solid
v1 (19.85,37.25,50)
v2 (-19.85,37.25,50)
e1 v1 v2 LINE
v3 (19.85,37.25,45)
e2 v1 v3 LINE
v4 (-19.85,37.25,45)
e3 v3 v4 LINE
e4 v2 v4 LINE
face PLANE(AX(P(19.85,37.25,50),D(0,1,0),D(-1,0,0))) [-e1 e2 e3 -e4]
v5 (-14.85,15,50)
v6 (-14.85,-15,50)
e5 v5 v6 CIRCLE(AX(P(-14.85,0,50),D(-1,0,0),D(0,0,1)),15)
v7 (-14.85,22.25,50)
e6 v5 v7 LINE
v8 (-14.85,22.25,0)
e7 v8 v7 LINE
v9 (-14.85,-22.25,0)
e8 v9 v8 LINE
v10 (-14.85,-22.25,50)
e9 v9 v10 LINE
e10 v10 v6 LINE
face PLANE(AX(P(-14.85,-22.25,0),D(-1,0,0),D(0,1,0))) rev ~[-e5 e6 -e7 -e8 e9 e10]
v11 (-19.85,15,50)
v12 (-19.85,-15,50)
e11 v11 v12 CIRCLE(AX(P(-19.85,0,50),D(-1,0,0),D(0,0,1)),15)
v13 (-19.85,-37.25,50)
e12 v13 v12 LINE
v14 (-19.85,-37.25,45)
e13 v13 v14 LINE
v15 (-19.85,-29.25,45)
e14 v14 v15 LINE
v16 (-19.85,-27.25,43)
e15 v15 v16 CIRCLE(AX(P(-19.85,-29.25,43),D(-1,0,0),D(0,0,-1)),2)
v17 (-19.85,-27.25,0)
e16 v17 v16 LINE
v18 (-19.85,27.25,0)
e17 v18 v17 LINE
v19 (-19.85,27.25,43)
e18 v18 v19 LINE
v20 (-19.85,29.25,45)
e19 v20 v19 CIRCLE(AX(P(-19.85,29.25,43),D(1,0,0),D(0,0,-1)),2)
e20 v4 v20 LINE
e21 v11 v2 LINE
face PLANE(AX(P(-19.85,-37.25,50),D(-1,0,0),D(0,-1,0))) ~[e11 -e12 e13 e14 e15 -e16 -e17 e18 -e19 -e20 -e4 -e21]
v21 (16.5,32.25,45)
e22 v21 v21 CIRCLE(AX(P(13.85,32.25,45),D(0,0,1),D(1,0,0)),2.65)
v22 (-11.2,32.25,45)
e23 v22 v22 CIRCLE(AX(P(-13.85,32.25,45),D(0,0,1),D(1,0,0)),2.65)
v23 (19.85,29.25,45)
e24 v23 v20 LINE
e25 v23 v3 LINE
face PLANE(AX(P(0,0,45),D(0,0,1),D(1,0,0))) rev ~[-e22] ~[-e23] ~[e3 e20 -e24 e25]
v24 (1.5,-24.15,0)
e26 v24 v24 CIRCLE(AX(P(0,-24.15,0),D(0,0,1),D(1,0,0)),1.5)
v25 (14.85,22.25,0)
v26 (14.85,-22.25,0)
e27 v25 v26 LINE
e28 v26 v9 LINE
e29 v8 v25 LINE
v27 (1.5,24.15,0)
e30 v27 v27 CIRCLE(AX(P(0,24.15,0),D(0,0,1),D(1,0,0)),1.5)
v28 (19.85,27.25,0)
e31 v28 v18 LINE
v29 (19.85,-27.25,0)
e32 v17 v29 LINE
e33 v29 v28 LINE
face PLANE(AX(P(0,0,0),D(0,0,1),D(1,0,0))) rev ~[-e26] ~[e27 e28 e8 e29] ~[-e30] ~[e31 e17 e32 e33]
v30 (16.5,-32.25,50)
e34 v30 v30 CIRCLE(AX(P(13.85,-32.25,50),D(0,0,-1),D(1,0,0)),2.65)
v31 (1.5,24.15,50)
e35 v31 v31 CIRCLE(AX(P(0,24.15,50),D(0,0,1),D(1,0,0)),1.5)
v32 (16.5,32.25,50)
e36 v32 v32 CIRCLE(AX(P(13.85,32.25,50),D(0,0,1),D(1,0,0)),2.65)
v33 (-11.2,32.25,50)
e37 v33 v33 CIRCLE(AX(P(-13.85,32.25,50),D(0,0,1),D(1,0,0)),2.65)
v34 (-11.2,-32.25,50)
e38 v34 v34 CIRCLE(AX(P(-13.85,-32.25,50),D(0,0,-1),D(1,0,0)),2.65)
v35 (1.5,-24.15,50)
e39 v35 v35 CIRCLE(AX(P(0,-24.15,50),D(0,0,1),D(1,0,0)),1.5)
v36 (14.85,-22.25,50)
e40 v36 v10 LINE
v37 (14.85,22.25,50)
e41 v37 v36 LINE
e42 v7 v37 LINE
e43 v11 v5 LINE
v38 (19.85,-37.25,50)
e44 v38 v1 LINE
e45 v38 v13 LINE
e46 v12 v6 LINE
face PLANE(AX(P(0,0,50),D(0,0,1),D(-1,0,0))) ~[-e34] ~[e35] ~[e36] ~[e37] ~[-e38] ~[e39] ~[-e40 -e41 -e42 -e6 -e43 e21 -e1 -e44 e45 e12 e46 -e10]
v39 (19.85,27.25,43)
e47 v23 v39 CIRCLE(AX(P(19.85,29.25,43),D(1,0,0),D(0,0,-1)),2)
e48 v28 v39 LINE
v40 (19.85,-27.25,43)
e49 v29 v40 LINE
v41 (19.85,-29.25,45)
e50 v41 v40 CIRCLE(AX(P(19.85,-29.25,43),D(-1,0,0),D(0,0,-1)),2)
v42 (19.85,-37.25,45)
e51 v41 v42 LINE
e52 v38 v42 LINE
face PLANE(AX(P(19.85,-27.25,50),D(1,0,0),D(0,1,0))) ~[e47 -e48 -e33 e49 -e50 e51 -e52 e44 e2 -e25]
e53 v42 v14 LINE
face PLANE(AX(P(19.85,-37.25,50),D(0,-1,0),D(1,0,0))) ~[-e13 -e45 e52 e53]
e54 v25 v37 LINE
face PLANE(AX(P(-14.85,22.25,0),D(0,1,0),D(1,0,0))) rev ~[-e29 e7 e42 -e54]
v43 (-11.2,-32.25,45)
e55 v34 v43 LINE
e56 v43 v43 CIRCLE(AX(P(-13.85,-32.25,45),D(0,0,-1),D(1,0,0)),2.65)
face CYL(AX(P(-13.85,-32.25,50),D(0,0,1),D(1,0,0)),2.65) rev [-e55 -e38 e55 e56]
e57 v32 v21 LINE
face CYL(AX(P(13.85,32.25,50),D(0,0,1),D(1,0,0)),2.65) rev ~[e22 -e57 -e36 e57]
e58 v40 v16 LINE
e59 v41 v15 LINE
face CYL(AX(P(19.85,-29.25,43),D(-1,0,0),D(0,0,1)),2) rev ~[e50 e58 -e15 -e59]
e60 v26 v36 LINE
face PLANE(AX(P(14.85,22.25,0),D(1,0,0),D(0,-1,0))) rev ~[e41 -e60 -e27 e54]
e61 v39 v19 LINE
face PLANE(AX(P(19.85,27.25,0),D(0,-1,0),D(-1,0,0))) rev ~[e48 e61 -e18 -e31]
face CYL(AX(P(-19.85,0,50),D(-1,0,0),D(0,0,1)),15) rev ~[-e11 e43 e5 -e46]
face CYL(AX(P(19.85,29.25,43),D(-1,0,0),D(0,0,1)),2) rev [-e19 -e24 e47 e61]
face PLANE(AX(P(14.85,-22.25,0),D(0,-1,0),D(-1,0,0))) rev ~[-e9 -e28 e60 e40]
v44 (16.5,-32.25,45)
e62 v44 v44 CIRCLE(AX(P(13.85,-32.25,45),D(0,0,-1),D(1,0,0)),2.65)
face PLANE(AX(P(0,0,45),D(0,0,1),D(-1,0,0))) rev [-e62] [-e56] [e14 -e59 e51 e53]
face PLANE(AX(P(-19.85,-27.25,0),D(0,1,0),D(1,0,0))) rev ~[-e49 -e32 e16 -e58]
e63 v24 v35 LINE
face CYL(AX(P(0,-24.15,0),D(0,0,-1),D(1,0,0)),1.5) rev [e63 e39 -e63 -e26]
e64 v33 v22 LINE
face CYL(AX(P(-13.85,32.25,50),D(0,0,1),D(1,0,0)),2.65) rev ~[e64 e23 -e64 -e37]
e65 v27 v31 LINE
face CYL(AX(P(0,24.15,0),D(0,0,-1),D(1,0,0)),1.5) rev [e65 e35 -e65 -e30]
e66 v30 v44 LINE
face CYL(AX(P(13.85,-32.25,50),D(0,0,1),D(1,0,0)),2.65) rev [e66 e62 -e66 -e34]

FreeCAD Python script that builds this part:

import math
import FreeCAD as App
import Part
import Sketcher
from FreeCAD import Vector
Q = App.Units.Quantity


def edges_at(feature, points):
    """Names of the edges that pass closest to the given points."""
    edges = feature.Shape.Edges
    near = lambda p: min(range(len(edges)), key=lambda i: edges[i].distToShape(Part.Vertex(*p))[0])
    return sorted({f"Edge{near(p) + 1}" for p in points})

doc = App.newDocument("Part")
body = doc.addObject("PartDesign::Body", "Body")

# Sketch on XY plane
sketch1 = doc.addObject("Sketcher::SketchObject", "Sketch")
body.addObject(sketch1)
sketch1.AttachmentSupport = (doc.XY_Plane, [""])
sketch1.MapMode = "FlatFace"
sketch1.addGeometry(Part.LineSegment(Vector(-19.9, 27.2, 0), Vector(-19.9, -27.2, 0)), False)
sketch1.addGeometry(Part.LineSegment(Vector(-19.9, -27.2, 0), Vector(19.9, -27.2, 0)), False)
sketch1.addGeometry(Part.LineSegment(Vector(19.9, -27.2, 0), Vector(19.9, 27.2, 0)), False)
sketch1.addGeometry(Part.LineSegment(Vector(19.9, 27.2, 0), Vector(-19.9, 27.2, 0)), False)
sketch1.addGeometry(Part.Circle(Vector(0, -24.1, 0), Vector(0, 0, 1), 1.5), False)
sketch1.addGeometry(Part.LineSegment(Vector(-14.8, 22.2, 0), Vector(14.8, 22.2, 0)), False)
sketch1.addGeometry(Part.LineSegment(Vector(14.8, 22.2, 0), Vector(14.8, -22.2, 0)), False)
sketch1.addGeometry(Part.LineSegment(Vector(14.8, -22.2, 0), Vector(-14.8, -22.2, 0)), False)
sketch1.addGeometry(Part.LineSegment(Vector(-14.8, -22.2, 0), Vector(-14.8, 22.2, 0)), False)
sketch1.addGeometry(Part.Circle(Vector(0, 24.1, 0), Vector(0, 0, 1), 1.5), False)
sketch1.addConstraint(Sketcher.Constraint("Coincident", 0, 2, 1, 1))
sketch1.addConstraint(Sketcher.Constraint("Coincident", 1, 2, 2, 1))
sketch1.addConstraint(Sketcher.Constraint("Coincident", 2, 2, 3, 1))
sketch1.addConstraint(Sketcher.Constraint("Coincident", 3, 2, 0, 1))
sketch1.addConstraint(Sketcher.Constraint("Coincident", 5, 2, 6, 1))
sketch1.addConstraint(Sketcher.Constraint("Coincident", 6, 2, 7, 1))
sketch1.addConstraint(Sketcher.Constraint("Coincident", 7, 2, 8, 1))
sketch1.addConstraint(Sketcher.Constraint("Coincident", 8, 2, 5, 1))
sketch1.addConstraint(Sketcher.Constraint("Vertical", 0))
sketch1.addConstraint(Sketcher.Constraint("Horizontal", 1))
sketch1.addConstraint(Sketcher.Constraint("Vertical", 2))
sketch1.addConstraint(Sketcher.Constraint("Horizontal", 3))
sketch1.addConstraint(Sketcher.Constraint("Horizontal", 5))
sketch1.addConstraint(Sketcher.Constraint("Vertical", 6))
sketch1.addConstraint(Sketcher.Constraint("Horizontal", 7))
sketch1.addConstraint(Sketcher.Constraint("Vertical", 8))
sketch1.addConstraint(Sketcher.Constraint("Equal", 4, 9))
sketch1.addConstraint(Sketcher.Constraint("Symmetric", 4, 3, 9, 3, -1, 1))
sketch1.addConstraint(Sketcher.Constraint("Symmetric", 0, 2, 2, 2, -1, 1))
sketch1.addConstraint(Sketcher.Constraint("Symmetric", 5, 2, 7, 2, -1, 1))
sketch1.addConstraint(Sketcher.Constraint("PointOnObject", 4, 3, -2))
sketch1.addConstraint(Sketcher.Constraint("Diameter", 4, Q("3 mm")))
sketch1.addConstraint(Sketcher.Constraint("DistanceX", 5, 2, 2, 2, Q("5 mm")))
sketch1.addConstraint(Sketcher.Constraint("DistanceY", 5, 2, 2, 2, Q("5 mm")))
sketch1.addConstraint(Sketcher.Constraint("DistanceX", 1, 1, 1, 2, Q("39.7 mm")))
sketch1.addConstraint(Sketcher.Constraint("DistanceY", 0, 2, 0, 1, Q("54.5 mm")))
sketch1.addConstraint(Sketcher.Constraint("DistanceY", 4, 3, 9, 3, Q("48.3 mm")))
pad1 = doc.addObject("PartDesign::Pad", "Pad")
body.addObject(pad1)
pad1.Profile = sketch1
pad1.Length = 50

# Sketch on YZ plane
sketch2 = doc.addObject("Sketcher::SketchObject", "Sketch001")
body.addObject(sketch2)
sketch2.AttachmentSupport = (doc.YZ_Plane, [""])
sketch2.MapMode = "FlatFace"
sketch2.AttachmentOffset = App.Placement(Vector(0, 0, -19.85), App.Rotation())
sketch2.addGeometry(Part.LineSegment(Vector(-15, 50, 0), Vector(15, 50, 0)), False)
sketch2.addGeometry(Part.ArcOfCircle(Part.Circle(Vector(0, 50, 0), Vector(0, 0, 1), 15), math.radians(180), math.radians(360)), False)
sketch2.addConstraint(Sketcher.Constraint("Coincident", 0, 1, 1, 1))
sketch2.addConstraint(Sketcher.Constraint("Coincident", 1, 2, 0, 2))
sketch2.addConstraint(Sketcher.Constraint("Horizontal", 0))
sketch2.addConstraint(Sketcher.Constraint("PointOnObject", 1, 3, -2))
sketch2.addConstraint(Sketcher.Constraint("Horizontal", 1, 3, 0, 1))
sketch2.addConstraint(Sketcher.Constraint("Radius", 1, Q("15 mm")))
sketch2.addConstraint(Sketcher.Constraint("DistanceY", -1, 1, 1, 3, Q("50 mm")))
pocket1 = doc.addObject("PartDesign::Pocket", "Pocket")
body.addObject(pocket1)
pocket1.Profile = sketch2
pocket1.Length = 34.7
pocket1.Reversed = True

# Sketch on XY plane
sketch3 = doc.addObject("Sketcher::SketchObject", "Sketch002")
body.addObject(sketch3)
sketch3.AttachmentSupport = (doc.XY_Plane, [""])
sketch3.MapMode = "FlatFace"
sketch3.AttachmentOffset = App.Placement(Vector(0, 0, 50), App.Rotation())
sketch3.addGeometry(Part.LineSegment(Vector(-19.9, 27.2, 0), Vector(19.9, 27.2, 0)), False)
sketch3.addGeometry(Part.LineSegment(Vector(19.9, 27.2, 0), Vector(19.9, 37.2, 0)), False)
sketch3.addGeometry(Part.LineSegment(Vector(19.9, 37.2, 0), Vector(-19.9, 37.2, 0)), False)
sketch3.addGeometry(Part.LineSegment(Vector(-19.9, 37.2, 0), Vector(-19.9, 27.2, 0)), False)
sketch3.addGeometry(Part.Circle(Vector(-13.8, 32.2, 0), Vector(0, 0, 1), 2.6), False)
sketch3.addGeometry(Part.Circle(Vector(13.8, 32.2, 0), Vector(0, 0, 1), 2.6), False)
sketch3.addConstraint(Sketcher.Constraint("Coincident", 0, 2, 1, 1))
sketch3.addConstraint(Sketcher.Constraint("Coincident", 1, 2, 2, 1))
sketch3.addConstraint(Sketcher.Constraint("Coincident", 2, 2, 3, 1))
sketch3.addConstraint(Sketcher.Constraint("Coincident", 3, 2, 0, 1))
sketch3.addConstraint(Sketcher.Constraint("Horizontal", 0))
sketch3.addConstraint(Sketcher.Constraint("Vertical", 1))
sketch3.addConstraint(Sketcher.Constraint("Horizontal", 2))
sketch3.addConstraint(Sketcher.Constraint("Vertical", 3))
sketch3.addConstraint(Sketcher.Constraint("Equal", 4, 5))
sketch3.addConstraint(Sketcher.Constraint("Symmetric", 4, 3, 5, 3, -2))
sketch3.addConstraint(Sketcher.Constraint("Diameter", 4, Q("5.3 mm")))
sketch3.addConstraint(Sketcher.Constraint("DistanceY", 1, 1, 1, 2, Q("10 mm")))
sketch3.addConstraint(Sketcher.Constraint("DistanceX", 5, 3, 0, 2, Q("6 mm")))
sketch3.addConstraint(Sketcher.Constraint("DistanceX", 2, 2, 4, 3, Q("6 mm")))
sketch3.addConstraint(Sketcher.Constraint("DistanceX", 0, 1, 0, 2, Q("39.7 mm")))
sketch3.addConstraint(Sketcher.Constraint("DistanceY", 0, 2, 5, 3, Q("5 mm")))
sketch3.addConstraint(Sketcher.Constraint("DistanceY", -1, 1, 4, 3, Q("32.25 mm")))
pad2 = doc.addObject("PartDesign::Pad", "Pad001")
body.addObject(pad2)
pad2.Profile = sketch3
pad2.Length = 5
pad2.Reversed = True
doc.recompute()

fillet = doc.addObject("PartDesign::Fillet", "Fillet")
body.addObject(fillet)
fillet.Base = (pad2, edges_at(pad2, [(0, 27.25, 45)]))
fillet.Radius = 2
doc.recompute()

mirrored = doc.addObject("PartDesign::Mirrored", "Mirrored")
body.addObject(mirrored)
mirrored.Originals = [pad2, fillet]
mirrored.MirrorPlane = (doc.XZ_Plane, [""])
body.Tip = mirrored

doc.recompute()
